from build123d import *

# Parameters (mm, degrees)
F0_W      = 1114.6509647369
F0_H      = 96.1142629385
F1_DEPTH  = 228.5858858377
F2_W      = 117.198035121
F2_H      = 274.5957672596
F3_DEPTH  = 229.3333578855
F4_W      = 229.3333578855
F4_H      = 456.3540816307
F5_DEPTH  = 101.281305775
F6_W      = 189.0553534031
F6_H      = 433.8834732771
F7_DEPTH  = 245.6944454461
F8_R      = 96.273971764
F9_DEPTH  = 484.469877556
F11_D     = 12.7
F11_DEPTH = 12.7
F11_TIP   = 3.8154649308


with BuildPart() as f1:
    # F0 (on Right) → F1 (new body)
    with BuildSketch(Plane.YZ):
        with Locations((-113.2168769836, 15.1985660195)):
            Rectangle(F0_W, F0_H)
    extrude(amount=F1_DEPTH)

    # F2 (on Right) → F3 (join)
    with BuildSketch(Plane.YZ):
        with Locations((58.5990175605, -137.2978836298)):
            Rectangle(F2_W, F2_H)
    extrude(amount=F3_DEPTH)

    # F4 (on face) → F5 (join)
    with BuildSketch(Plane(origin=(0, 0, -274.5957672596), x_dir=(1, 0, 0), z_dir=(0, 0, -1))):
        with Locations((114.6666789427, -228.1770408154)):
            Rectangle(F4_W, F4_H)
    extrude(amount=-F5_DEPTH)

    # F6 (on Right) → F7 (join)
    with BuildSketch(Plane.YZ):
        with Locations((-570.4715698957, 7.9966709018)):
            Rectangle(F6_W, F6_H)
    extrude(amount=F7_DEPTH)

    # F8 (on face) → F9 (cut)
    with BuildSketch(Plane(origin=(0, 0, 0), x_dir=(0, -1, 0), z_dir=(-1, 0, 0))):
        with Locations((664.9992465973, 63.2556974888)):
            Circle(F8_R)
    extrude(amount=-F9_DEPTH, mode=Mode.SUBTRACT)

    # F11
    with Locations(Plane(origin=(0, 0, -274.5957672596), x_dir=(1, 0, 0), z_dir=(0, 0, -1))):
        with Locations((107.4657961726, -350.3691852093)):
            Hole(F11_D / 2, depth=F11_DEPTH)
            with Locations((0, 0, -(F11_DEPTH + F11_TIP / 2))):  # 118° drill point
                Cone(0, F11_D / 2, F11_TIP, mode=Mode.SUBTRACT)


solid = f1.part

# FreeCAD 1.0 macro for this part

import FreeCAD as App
import Part
import Sketcher
from FreeCAD import Vector
Q = App.Units.Quantity

doc = App.newDocument("Part")
body = doc.addObject("PartDesign::Body", "Body")

sketch1 = body.newObject("Sketcher::SketchObject", "Sketch")
sketch1.AttachmentSupport = (doc.getObject("YZ_Plane"), [""])
sketch1.MapMode = "FlatFace"
sketch1.addGeometry(Part.LineSegment(Vector(-670.542359, 63.255697, 0), Vector(-670.542359, -32.858565, 0)), False)
sketch1.addGeometry(Part.LineSegment(Vector(-670.542359, -32.858565, 0), Vector(444.108605, -32.858565, 0)), False)
sketch1.addGeometry(Part.LineSegment(Vector(444.108605, -32.858565, 0), Vector(444.108605, 63.255697, 0)), False)
sketch1.addGeometry(Part.LineSegment(Vector(444.108605, 63.255697, 0), Vector(-670.542359, 63.255697, 0)), False)
sketch1.addConstraint(Sketcher.Constraint("Coincident", 0, 2, 1, 1))
sketch1.addConstraint(Sketcher.Constraint("Coincident", 1, 2, 2, 1))
sketch1.addConstraint(Sketcher.Constraint("Coincident", 2, 2, 3, 1))
sketch1.addConstraint(Sketcher.Constraint("Coincident", 3, 2, 0, 1))
sketch1.addConstraint(Sketcher.Constraint("Vertical", 0))
sketch1.addConstraint(Sketcher.Constraint("Horizontal", 1))
sketch1.addConstraint(Sketcher.Constraint("Vertical", 2))
sketch1.addConstraint(Sketcher.Constraint("Horizontal", 3))
sketch1.addConstraint(Sketcher.Constraint("DistanceX", 1, 1, 1, 2, 1114.650965))
sketch1.addConstraint(Sketcher.Constraint("DistanceY", 0, 2, 0, 1, 96.114263))
sketch1.addConstraint(Sketcher.Constraint("DistanceX", 0, 2, -1, 1, 670.542359))
sketch1.addConstraint(Sketcher.Constraint("DistanceY", 0, 2, -1, 1, 32.858565))
pad1 = body.newObject("PartDesign::Pad", "Pad")
pad1.Profile = sketch1
pad1.Length = 228.585886

sketch2 = body.newObject("Sketcher::SketchObject", "Sketch001")
sketch2.AttachmentSupport = (doc.getObject("YZ_Plane"), [""])
sketch2.MapMode = "FlatFace"
sketch2.addGeometry(Part.LineSegment(Vector(0, 0, 0), Vector(0, -274.595767, 0)), False)
sketch2.addGeometry(Part.LineSegment(Vector(0, -274.595767, 0), Vector(117.198035, -274.595767, 0)), False)
sketch2.addGeometry(Part.LineSegment(Vector(117.198035, -274.595767, 0), Vector(117.198035, 0, 0)), False)
sketch2.addGeometry(Part.LineSegment(Vector(117.198035, 0, 0), Vector(0, 0, 0)), False)
sketch2.addConstraint(Sketcher.Constraint("Coincident", 0, 2, 1, 1))
sketch2.addConstraint(Sketcher.Constraint("Coincident", 1, 2, 2, 1))
sketch2.addConstraint(Sketcher.Constraint("Coincident", 2, 2, 3, 1))
sketch2.addConstraint(Sketcher.Constraint("Coincident", 3, 2, 0, 1))
sketch2.addConstraint(Sketcher.Constraint("Vertical", 0))
sketch2.addConstraint(Sketcher.Constraint("Horizontal", 1))
sketch2.addConstraint(Sketcher.Constraint("Vertical", 2))
sketch2.addConstraint(Sketcher.Constraint("Horizontal", 3))
sketch2.addConstraint(Sketcher.Constraint("Coincident", 3, 2, -1, 1))
sketch2.addConstraint(Sketcher.Constraint("DistanceX", 1, 1, 1, 2, 117.198035))
sketch2.addConstraint(Sketcher.Constraint("DistanceY", 0, 2, 0, 1, 274.595767))
pad2 = body.newObject("PartDesign::Pad", "Pad001")
pad2.Profile = sketch2
pad2.Length = 229.333358

sketch3 = body.newObject("Sketcher::SketchObject", "Sketch002")
sketch3.AttachmentSupport = (doc.getObject("XY_Plane"), [""])
sketch3.MapMode = "FlatFace"
sketch3.AttachmentOffset = App.Placement(Vector(0, 0, -274.595767), App.Rotation())
sketch3.addGeometry(Part.LineSegment(Vector(0, 0, 0), Vector(0, 456.354082, 0)), False)
sketch3.addGeometry(Part.LineSegment(Vector(0, 456.354082, 0), Vector(229.333358, 456.354082, 0)), False)
sketch3.addGeometry(Part.LineSegment(Vector(229.333358, 456.354082, 0), Vector(229.333358, 0, 0)), False)
sketch3.addGeometry(Part.LineSegment(Vector(229.333358, 0, 0), Vector(0, 0, 0)), False)
sketch3.addConstraint(Sketcher.Constraint("Coincident", 0, 2, 1, 1))
sketch3.addConstraint(Sketcher.Constraint("Coincident", 1, 2, 2, 1))
sketch3.addConstraint(Sketcher.Constraint("Coincident", 2, 2, 3, 1))
sketch3.addConstraint(Sketcher.Constraint("Coincident", 3, 2, 0, 1))
sketch3.addConstraint(Sketcher.Constraint("Vertical", 0))
sketch3.addConstraint(Sketcher.Constraint("Horizontal", 1))
sketch3.addConstraint(Sketcher.Constraint("Vertical", 2))
sketch3.addConstraint(Sketcher.Constraint("Horizontal", 3))
sketch3.addConstraint(Sketcher.Constraint("Coincident", 3, 2, -1, 1))
sketch3.addConstraint(Sketcher.Constraint("DistanceY", 0, 1, 0, 2, 456.354082))
sketch3.addConstraint(Sketcher.Constraint("DistanceX", 1, 1, 1, 2, 229.333358))
pad3 = body.newObject("PartDesign::Pad", "Pad002")
pad3.Profile = sketch3
pad3.Length = 101.281306

sketch4 = body.newObject("Sketcher::SketchObject", "Sketch003")
sketch4.AttachmentSupport = (doc.getObject("YZ_Plane"), [""])
sketch4.MapMode = "FlatFace"
sketch4.addGeometry(Part.LineSegment(Vector(-664.999247, 224.938408, 0), Vector(-664.999247, -208.945066, 0)), False)
sketch4.addGeometry(Part.LineSegment(Vector(-664.999247, -208.945066, 0), Vector(-475.943893, -208.945066, 0)), False)
sketch4.addGeometry(Part.LineSegment(Vector(-475.943893, -208.945066, 0), Vector(-475.943893, 224.938408, 0)), False)
sketch4.addGeometry(Part.LineSegment(Vector(-475.943893, 224.938408, 0), Vector(-664.999247, 224.938408, 0)), False)
sketch4.addConstraint(Sketcher.Constraint("Coincident", 0, 2, 1, 1))
sketch4.addConstraint(Sketcher.Constraint("Coincident", 1, 2, 2, 1))
sketch4.addConstraint(Sketcher.Constraint("Coincident", 2, 2, 3, 1))
sketch4.addConstraint(Sketcher.Constraint("Coincident", 3, 2, 0, 1))
sketch4.addConstraint(Sketcher.Constraint("Vertical", 0))
sketch4.addConstraint(Sketcher.Constraint("Horizontal", 1))
sketch4.addConstraint(Sketcher.Constraint("Vertical", 2))
sketch4.addConstraint(Sketcher.Constraint("Horizontal", 3))
sketch4.addConstraint(Sketcher.Constraint("DistanceX", 1, 1, 1, 2, 189.055353))
sketch4.addConstraint(Sketcher.Constraint("DistanceY", 0, 2, 0, 1, 433.883473))
sketch4.addConstraint(Sketcher.Constraint("DistanceX", 0, 2, -1, 1, 664.999247))
sketch4.addConstraint(Sketcher.Constraint("DistanceY", 0, 2, -1, 1, 208.945066))
pad4 = body.newObject("PartDesign::Pad", "Pad003")
pad4.Profile = sketch4
pad4.Length = 245.694445

sketch5 = body.newObject("Sketcher::SketchObject", "Sketch004")
sketch5.AttachmentSupport = (doc.getObject("YZ_Plane"), [""])
sketch5.MapMode = "FlatFace"
sketch5.addGeometry(Part.Circle(Vector(-664.999247, 63.255697, 0), Vector(0, 0, 1), 96.273972), False)
sketch5.addConstraint(Sketcher.Constraint("Diameter", 0, 192.547944))
sketch5.addConstraint(Sketcher.Constraint("DistanceX", 0, 3, -1, 1, 664.999247))
sketch5.addConstraint(Sketcher.Constraint("DistanceY", -1, 1, 0, 3, 63.255697))
pocket1 = body.newObject("PartDesign::Pocket", "Pocket")
pocket1.Profile = sketch5
pocket1.Length = 484.469878
pocket1.Reversed = True

sketch6 = body.newObject("Sketcher::SketchObject", "Sketch005")
sketch6.AttachmentSupport = (doc.getObject("XY_Plane"), [""])
sketch6.MapMode = "FlatFace"
sketch6.AttachmentOffset = App.Placement(Vector(0, 0, -274.595767), App.Rotation())
sketch6.addGeometry(Part.Circle(Vector(107.465796, 350.369185, 0), Vector(0, 0, 1), 6.35), False)
sketch6.addConstraint(Sketcher.Constraint("Diameter", 0, Q("0.5 in")))
sketch6.addConstraint(Sketcher.Constraint("DistanceX", -1, 1, 0, 3, 107.465796))
sketch6.addConstraint(Sketcher.Constraint("DistanceY", -1, 1, 0, 3, 350.369185))
doc.recompute()
hole = body.newObject("PartDesign::Hole", "Hole")
hole.Profile = sketch6
hole.ThreadType = "None"
hole.Diameter = Q("0.5 in")
hole.DepthType = "Dimension"
hole.Depth = Q("0.5 in")
hole.DrillPoint = "Angled"
hole.DrillPointAngle = 118
hole.Reversed = True

doc.recompute()
